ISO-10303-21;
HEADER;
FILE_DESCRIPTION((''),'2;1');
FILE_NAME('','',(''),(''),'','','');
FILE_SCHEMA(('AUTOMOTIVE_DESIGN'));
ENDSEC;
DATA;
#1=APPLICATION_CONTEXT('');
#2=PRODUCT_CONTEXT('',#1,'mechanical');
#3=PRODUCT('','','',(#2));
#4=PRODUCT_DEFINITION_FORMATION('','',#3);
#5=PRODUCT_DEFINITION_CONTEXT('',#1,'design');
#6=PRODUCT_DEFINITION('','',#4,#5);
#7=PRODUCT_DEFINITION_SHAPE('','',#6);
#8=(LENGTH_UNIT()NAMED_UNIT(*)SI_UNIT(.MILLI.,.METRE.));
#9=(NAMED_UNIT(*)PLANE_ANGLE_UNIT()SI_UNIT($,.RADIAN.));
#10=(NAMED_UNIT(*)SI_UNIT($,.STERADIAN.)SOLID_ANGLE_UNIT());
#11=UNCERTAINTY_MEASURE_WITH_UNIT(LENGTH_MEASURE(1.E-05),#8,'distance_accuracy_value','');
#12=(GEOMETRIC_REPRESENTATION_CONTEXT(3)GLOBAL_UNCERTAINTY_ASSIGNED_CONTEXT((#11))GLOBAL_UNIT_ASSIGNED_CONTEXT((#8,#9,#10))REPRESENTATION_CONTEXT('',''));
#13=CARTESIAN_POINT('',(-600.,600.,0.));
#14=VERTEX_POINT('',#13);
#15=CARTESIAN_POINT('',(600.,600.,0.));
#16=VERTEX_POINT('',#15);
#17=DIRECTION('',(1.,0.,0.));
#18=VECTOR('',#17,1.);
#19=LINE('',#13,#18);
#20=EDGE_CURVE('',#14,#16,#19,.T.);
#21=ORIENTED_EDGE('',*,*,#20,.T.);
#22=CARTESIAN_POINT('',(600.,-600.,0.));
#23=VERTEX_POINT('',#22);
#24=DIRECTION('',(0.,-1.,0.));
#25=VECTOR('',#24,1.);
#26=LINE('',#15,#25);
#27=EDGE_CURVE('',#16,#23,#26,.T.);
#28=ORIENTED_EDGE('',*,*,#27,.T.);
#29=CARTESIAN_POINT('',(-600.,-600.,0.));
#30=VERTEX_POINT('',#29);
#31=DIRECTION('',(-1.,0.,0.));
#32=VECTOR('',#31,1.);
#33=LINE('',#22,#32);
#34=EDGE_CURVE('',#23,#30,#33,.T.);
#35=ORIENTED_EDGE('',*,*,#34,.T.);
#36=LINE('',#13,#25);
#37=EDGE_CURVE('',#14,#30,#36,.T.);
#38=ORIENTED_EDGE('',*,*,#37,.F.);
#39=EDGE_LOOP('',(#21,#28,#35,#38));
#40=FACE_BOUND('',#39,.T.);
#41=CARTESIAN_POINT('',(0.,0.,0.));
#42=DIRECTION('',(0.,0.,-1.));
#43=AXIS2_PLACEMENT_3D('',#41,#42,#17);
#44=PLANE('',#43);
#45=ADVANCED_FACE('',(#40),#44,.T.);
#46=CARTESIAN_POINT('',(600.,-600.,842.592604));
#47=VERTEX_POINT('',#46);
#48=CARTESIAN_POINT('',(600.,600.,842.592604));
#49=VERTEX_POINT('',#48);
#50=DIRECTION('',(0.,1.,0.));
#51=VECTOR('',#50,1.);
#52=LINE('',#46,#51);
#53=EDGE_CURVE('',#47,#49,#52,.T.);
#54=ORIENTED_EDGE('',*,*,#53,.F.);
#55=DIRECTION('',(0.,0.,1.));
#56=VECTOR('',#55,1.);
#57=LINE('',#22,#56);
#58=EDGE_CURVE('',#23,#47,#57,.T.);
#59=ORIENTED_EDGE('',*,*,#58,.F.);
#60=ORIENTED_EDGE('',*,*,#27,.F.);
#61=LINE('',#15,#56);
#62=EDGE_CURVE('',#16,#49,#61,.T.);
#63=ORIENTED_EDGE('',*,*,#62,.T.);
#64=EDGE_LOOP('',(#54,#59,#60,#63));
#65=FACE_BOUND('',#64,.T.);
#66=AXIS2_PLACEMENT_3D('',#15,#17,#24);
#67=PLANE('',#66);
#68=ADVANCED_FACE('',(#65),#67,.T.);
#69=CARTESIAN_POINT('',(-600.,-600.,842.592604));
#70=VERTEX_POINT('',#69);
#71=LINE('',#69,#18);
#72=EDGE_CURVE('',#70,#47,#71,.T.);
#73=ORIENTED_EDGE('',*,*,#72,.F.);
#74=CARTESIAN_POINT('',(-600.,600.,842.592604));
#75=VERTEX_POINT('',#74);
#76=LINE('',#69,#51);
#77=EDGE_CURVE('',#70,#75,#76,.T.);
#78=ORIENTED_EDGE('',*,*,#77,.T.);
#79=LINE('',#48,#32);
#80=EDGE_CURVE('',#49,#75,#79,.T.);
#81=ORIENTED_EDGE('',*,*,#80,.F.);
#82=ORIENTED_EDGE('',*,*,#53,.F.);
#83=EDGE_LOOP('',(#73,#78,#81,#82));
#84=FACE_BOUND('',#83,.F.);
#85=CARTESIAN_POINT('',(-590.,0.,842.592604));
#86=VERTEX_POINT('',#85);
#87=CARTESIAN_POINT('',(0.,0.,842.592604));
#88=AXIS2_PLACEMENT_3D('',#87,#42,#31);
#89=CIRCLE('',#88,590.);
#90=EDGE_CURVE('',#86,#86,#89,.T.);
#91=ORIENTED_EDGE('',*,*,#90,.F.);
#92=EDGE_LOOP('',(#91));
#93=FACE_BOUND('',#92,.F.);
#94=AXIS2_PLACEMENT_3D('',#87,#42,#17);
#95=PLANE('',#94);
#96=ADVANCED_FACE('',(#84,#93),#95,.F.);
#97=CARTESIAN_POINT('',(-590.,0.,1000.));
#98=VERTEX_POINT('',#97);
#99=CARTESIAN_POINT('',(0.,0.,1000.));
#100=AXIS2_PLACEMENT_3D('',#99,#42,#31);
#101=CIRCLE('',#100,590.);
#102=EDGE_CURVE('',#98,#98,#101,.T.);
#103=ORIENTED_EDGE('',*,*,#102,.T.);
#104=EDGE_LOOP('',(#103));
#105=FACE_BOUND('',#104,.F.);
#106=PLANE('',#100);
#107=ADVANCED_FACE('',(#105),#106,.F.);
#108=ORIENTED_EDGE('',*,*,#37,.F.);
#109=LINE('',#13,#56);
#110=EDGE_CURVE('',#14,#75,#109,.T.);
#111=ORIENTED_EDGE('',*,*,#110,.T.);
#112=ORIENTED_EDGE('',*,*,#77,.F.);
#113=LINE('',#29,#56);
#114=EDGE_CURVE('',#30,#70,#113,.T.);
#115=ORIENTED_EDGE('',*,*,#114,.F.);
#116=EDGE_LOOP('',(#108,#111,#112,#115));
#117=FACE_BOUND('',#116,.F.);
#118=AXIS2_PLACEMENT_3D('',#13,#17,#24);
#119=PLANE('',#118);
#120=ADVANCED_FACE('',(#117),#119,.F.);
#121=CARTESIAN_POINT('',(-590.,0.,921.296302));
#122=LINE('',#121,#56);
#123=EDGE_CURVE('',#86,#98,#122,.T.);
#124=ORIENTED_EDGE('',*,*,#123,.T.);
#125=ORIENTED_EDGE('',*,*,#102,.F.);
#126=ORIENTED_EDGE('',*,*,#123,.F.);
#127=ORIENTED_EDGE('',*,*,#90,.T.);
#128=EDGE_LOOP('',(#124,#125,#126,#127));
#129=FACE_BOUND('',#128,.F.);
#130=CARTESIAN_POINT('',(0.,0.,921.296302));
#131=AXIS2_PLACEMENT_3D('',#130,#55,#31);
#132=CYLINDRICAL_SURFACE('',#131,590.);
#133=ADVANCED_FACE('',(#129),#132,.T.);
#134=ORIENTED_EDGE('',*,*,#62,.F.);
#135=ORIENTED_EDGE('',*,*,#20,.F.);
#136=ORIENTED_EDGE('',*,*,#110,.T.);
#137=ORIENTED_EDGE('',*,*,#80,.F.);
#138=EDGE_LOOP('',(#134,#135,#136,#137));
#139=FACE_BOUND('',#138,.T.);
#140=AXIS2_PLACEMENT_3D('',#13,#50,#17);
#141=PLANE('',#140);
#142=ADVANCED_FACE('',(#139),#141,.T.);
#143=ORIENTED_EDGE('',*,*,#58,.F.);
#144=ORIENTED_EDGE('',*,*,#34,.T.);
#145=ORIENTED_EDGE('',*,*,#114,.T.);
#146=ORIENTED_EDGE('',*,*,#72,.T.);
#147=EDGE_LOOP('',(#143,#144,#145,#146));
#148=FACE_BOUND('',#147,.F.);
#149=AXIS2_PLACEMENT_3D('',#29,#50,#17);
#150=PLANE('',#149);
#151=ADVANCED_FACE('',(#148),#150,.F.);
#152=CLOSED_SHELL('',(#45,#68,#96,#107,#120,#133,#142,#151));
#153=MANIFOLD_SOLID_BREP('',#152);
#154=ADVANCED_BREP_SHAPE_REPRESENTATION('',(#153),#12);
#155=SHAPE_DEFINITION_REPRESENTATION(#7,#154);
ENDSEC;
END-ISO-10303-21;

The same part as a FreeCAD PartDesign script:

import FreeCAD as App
import Part
import Sketcher
from FreeCAD import Vector

doc = App.newDocument("Part")
params = doc.addObject("Spreadsheet::Sheet", "Params")
for row, (alias, value) in enumerate([
    ("sketch1_width", "600 mm"),
    ("sketch1_width2", "590 mm"),
    ("sketch1_height", "1000 mm"),
    ("revolution_angle", "360 deg"),
    ("sketch2_width", "1200 mm"),
    ("pad1_length", "842.592604 mm"),
], start=1):
    params.set(f"A{row}", alias)
    params.set(f"B{row}", "=" + value)
    params.setAlias(f"B{row}", alias)

body = doc.addObject("PartDesign::Body", "Body")

# Sketch on XZ plane
sketch1 = doc.addObject("Sketcher::SketchObject", "Sketch")
body.addObject(sketch1)
sketch1.AttachmentSupport = (doc.XZ_Plane, [""])
sketch1.MapMode = "FlatFace"
sketch1.addGeometry([
    Part.LineSegment(Vector(-600, 843, 0), Vector(-600, 0, 0)),  # 0
    Part.LineSegment(Vector(-600, 0, 0), Vector(0, 0, 0)),  # 1
    Part.LineSegment(Vector(0, 0, 0), Vector(0, 1000, 0)),  # 2
    Part.LineSegment(Vector(0, 1000, 0), Vector(-590, 1000, 0)),  # 3
    Part.LineSegment(Vector(-590, 1000, 0), Vector(-590, 843, 0)),  # 4
    Part.LineSegment(Vector(-590, 843, 0), Vector(-600, 843, 0)),  # 5
], False)
sketch1.addConstraint([
    Sketcher.Constraint("Coincident", 0, 2, 1, 1),
    Sketcher.Constraint("Coincident", 1, 2, 2, 1),
    Sketcher.Constraint("Coincident", 2, 2, 3, 1),
    Sketcher.Constraint("Coincident", 3, 2, 4, 1),
    Sketcher.Constraint("Coincident", 4, 2, 5, 1),
    Sketcher.Constraint("Coincident", 5, 2, 0, 1),
    Sketcher.Constraint("Vertical", 0),
    Sketcher.Constraint("Horizontal", 1),
    Sketcher.Constraint("Vertical", 2),
    Sketcher.Constraint("Horizontal", 3),
    Sketcher.Constraint("Vertical", 4),
    Sketcher.Constraint("Horizontal", 5),
    Sketcher.Constraint("Coincident", 1, 2, -1, 1),
    Sketcher.Constraint("DistanceX", 1, 1, 1, 2, 600.0),
    Sketcher.Constraint("DistanceX", 3, 2, 3, 1, 590.0),
    Sketcher.Constraint("DistanceY", 2, 1, 2, 2, 1000.0),
    Sketcher.Constraint("DistanceY", 0, 2, 0, 1, 842.592604),
])
sketch1.setExpression("Constraints[13]", "Params.sketch1_width")
sketch1.setExpression("Constraints[14]", "Params.sketch1_width2")
sketch1.setExpression("Constraints[15]", "Params.sketch1_height")
revolution = doc.addObject("PartDesign::Revolution", "Revolution")
body.addObject(revolution)
revolution.Profile = sketch1
revolution.ReferenceAxis = (sketch1, ["V_Axis"])
revolution.setExpression("Angle", "Params.revolution_angle")

# Sketch on XY plane
sketch2 = doc.addObject("Sketcher::SketchObject", "Sketch001")
body.addObject(sketch2)
sketch2.AttachmentSupport = (doc.XY_Plane, [""])
sketch2.MapMode = "FlatFace"
sketch2.addGeometry([
    Part.LineSegment(Vector(-600, -600, 0), Vector(-600, 600, 0)),
    Part.LineSegment(Vector(-600, 600, 0), Vector(600, 600, 0)),
    Part.LineSegment(Vector(600, 600, 0), Vector(600, -600, 0)),
    Part.LineSegment(Vector(600, -600, 0), Vector(-600, -600, 0)),
], False)
sketch2.addConstraint([
    Sketcher.Constraint("Coincident", 0, 2, 1, 1),
    Sketcher.Constraint("Coincident", 1, 2, 2, 1),
    Sketcher.Constraint("Coincident", 2, 2, 3, 1),
    Sketcher.Constraint("Coincident", 3, 2, 0, 1),
    Sketcher.Constraint("Vertical", 0),
    Sketcher.Constraint("Horizontal", 1),
    Sketcher.Constraint("Vertical", 2),
    Sketcher.Constraint("Horizontal", 3),
    Sketcher.Constraint("Symmetric", 0, 2, 2, 2, -1, 1),
    Sketcher.Constraint("Equal", 3, 0),
    Sketcher.Constraint("DistanceX", 1, 1, 1, 2, 1200.0),
])
sketch2.setExpression("Constraints[10]", "Params.sketch2_width")
pad1 = doc.addObject("PartDesign::Pad", "Pad")
body.addObject(pad1)
pad1.Profile = sketch2
pad1.setExpression("Length", "Params.pad1_length")

doc.recompute()
